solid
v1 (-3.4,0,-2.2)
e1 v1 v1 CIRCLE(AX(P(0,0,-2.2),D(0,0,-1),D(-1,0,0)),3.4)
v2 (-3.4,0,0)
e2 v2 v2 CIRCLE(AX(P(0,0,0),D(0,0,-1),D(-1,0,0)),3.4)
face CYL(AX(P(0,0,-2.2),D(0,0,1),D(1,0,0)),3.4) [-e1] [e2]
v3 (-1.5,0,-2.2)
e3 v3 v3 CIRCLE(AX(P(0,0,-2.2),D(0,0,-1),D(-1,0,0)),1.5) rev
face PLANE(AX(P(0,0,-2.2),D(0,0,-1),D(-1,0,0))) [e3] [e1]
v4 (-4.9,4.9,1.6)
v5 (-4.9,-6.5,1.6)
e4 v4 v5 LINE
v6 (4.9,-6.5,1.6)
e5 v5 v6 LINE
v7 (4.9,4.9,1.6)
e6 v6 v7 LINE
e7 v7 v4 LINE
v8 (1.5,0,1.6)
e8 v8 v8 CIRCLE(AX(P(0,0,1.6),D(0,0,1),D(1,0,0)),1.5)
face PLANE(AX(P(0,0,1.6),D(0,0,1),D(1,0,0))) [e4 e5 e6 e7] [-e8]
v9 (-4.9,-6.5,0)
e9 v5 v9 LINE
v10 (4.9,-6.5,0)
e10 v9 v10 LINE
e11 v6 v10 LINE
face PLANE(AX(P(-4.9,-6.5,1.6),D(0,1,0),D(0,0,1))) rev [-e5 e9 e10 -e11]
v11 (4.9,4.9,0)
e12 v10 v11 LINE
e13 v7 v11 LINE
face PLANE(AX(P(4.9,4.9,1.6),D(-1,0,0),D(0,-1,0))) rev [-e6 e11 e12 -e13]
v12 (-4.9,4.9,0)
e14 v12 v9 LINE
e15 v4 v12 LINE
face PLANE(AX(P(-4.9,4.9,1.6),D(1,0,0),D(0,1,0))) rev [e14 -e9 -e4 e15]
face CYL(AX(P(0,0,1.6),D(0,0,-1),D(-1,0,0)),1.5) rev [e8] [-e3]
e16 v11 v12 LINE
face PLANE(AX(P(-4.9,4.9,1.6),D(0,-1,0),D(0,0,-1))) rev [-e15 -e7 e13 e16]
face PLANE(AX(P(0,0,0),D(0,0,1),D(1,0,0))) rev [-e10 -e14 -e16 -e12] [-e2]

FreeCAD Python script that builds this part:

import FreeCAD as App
import Part
import Sketcher
from FreeCAD import Vector

doc = App.newDocument("Part")
params = doc.addObject("Spreadsheet::Sheet", "Params")
for row, (alias, value) in enumerate([
    ("sketch1_diameter", "3 mm"),
    ("sketch1_width", "9.8 mm"),
    ("sketch1_height", "11.4 mm"),
    ("pad1_length", "1.6 mm"),
    ("sketch2_diameter", "3 mm"),
    ("sketch2_diameter2", "6.8 mm"),
    ("pad2_length", "2.2 mm"),
], start=1):
    params.set(f"A{row}", alias)
    params.set(f"B{row}", "=" + value)
    params.setAlias(f"B{row}", alias)

body = doc.addObject("PartDesign::Body", "Body")

# Sketch on XY plane
sketch1 = body.newObject("Sketcher::SketchObject", "Sketch")
sketch1.AttachmentSupport = (doc.getObject("XY_Plane"), [""])
sketch1.MapMode = "FlatFace"
sketch1.addGeometry([
    Part.LineSegment(Vector(-4.9, 4.9, 0), Vector(-4.9, -6.5, 0)),  # 0
    Part.LineSegment(Vector(-4.9, -6.5, 0), Vector(4.9, -6.5, 0)),  # 1
    Part.LineSegment(Vector(4.9, -6.5, 0), Vector(4.9, 4.9, 0)),  # 2
    Part.LineSegment(Vector(4.9, 4.9, 0), Vector(-4.9, 4.9, 0)),  # 3
    Part.Circle(Vector(0, 0, 0), Vector(0, 0, 1), 1.5),  # 4
], False)
sketch1.addConstraint([
    Sketcher.Constraint("Coincident", 0, 2, 1, 1),
    Sketcher.Constraint("Coincident", 1, 2, 2, 1),
    Sketcher.Constraint("Coincident", 2, 2, 3, 1),
    Sketcher.Constraint("Coincident", 3, 2, 0, 1),
    Sketcher.Constraint("Vertical", 0),
    Sketcher.Constraint("Horizontal", 1),
    Sketcher.Constraint("Vertical", 2),
    Sketcher.Constraint("Horizontal", 3),
    Sketcher.Constraint("Coincident", 4, 3, -1, 1),
    Sketcher.Constraint("Diameter", 4, 3.0),
    Sketcher.Constraint("DistanceX", 1, 1, 1, 2, 9.8),
    Sketcher.Constraint("DistanceY", 0, 2, 0, 1, 11.4),
    Sketcher.Constraint("DistanceX", 0, 2, -1, 1, 4.9),
    Sketcher.Constraint("DistanceY", 0, 2, -1, 1, 6.5),
])
sketch1.setExpression("Constraints[9]", "Params.sketch1_diameter")
sketch1.setExpression("Constraints[10]", "Params.sketch1_width")
sketch1.setExpression("Constraints[11]", "Params.sketch1_height")
pad1 = body.newObject("PartDesign::Pad", "Pad")
pad1.Profile = sketch1
pad1.setExpression("Length", "Params.pad1_length")

# Sketch on XY plane
sketch2 = body.newObject("Sketcher::SketchObject", "Sketch001")
sketch2.AttachmentSupport = (doc.getObject("XY_Plane"), [""])
sketch2.MapMode = "FlatFace"
sketch2.AttachmentOffset = App.Placement(Vector(0, 0, -2.2), App.Rotation())
sketch2.addGeometry([
    Part.Circle(Vector(0, 0, 0), Vector(0, 0, 1), 3.4),
    Part.Circle(Vector(0, 0, 0), Vector(0, 0, 1), 1.5),
], False)
sketch2.addConstraint([
    Sketcher.Constraint("Coincident", 0, 3, -1, 1),
    Sketcher.Constraint("Coincident", 1, 3, -1, 1),
    Sketcher.Constraint("Diameter", 1, 3.0),
    Sketcher.Constraint("Diameter", 0, 6.8),
])
sketch2.setExpression("Constraints[2]", "Params.sketch2_diameter")
sketch2.setExpression("Constraints[3]", "Params.sketch2_diameter2")
pad2 = body.newObject("PartDesign::Pad", "Pad001")
pad2.Profile = sketch2
pad2.setExpression("Length", "Params.pad2_length")

doc.recompute()
